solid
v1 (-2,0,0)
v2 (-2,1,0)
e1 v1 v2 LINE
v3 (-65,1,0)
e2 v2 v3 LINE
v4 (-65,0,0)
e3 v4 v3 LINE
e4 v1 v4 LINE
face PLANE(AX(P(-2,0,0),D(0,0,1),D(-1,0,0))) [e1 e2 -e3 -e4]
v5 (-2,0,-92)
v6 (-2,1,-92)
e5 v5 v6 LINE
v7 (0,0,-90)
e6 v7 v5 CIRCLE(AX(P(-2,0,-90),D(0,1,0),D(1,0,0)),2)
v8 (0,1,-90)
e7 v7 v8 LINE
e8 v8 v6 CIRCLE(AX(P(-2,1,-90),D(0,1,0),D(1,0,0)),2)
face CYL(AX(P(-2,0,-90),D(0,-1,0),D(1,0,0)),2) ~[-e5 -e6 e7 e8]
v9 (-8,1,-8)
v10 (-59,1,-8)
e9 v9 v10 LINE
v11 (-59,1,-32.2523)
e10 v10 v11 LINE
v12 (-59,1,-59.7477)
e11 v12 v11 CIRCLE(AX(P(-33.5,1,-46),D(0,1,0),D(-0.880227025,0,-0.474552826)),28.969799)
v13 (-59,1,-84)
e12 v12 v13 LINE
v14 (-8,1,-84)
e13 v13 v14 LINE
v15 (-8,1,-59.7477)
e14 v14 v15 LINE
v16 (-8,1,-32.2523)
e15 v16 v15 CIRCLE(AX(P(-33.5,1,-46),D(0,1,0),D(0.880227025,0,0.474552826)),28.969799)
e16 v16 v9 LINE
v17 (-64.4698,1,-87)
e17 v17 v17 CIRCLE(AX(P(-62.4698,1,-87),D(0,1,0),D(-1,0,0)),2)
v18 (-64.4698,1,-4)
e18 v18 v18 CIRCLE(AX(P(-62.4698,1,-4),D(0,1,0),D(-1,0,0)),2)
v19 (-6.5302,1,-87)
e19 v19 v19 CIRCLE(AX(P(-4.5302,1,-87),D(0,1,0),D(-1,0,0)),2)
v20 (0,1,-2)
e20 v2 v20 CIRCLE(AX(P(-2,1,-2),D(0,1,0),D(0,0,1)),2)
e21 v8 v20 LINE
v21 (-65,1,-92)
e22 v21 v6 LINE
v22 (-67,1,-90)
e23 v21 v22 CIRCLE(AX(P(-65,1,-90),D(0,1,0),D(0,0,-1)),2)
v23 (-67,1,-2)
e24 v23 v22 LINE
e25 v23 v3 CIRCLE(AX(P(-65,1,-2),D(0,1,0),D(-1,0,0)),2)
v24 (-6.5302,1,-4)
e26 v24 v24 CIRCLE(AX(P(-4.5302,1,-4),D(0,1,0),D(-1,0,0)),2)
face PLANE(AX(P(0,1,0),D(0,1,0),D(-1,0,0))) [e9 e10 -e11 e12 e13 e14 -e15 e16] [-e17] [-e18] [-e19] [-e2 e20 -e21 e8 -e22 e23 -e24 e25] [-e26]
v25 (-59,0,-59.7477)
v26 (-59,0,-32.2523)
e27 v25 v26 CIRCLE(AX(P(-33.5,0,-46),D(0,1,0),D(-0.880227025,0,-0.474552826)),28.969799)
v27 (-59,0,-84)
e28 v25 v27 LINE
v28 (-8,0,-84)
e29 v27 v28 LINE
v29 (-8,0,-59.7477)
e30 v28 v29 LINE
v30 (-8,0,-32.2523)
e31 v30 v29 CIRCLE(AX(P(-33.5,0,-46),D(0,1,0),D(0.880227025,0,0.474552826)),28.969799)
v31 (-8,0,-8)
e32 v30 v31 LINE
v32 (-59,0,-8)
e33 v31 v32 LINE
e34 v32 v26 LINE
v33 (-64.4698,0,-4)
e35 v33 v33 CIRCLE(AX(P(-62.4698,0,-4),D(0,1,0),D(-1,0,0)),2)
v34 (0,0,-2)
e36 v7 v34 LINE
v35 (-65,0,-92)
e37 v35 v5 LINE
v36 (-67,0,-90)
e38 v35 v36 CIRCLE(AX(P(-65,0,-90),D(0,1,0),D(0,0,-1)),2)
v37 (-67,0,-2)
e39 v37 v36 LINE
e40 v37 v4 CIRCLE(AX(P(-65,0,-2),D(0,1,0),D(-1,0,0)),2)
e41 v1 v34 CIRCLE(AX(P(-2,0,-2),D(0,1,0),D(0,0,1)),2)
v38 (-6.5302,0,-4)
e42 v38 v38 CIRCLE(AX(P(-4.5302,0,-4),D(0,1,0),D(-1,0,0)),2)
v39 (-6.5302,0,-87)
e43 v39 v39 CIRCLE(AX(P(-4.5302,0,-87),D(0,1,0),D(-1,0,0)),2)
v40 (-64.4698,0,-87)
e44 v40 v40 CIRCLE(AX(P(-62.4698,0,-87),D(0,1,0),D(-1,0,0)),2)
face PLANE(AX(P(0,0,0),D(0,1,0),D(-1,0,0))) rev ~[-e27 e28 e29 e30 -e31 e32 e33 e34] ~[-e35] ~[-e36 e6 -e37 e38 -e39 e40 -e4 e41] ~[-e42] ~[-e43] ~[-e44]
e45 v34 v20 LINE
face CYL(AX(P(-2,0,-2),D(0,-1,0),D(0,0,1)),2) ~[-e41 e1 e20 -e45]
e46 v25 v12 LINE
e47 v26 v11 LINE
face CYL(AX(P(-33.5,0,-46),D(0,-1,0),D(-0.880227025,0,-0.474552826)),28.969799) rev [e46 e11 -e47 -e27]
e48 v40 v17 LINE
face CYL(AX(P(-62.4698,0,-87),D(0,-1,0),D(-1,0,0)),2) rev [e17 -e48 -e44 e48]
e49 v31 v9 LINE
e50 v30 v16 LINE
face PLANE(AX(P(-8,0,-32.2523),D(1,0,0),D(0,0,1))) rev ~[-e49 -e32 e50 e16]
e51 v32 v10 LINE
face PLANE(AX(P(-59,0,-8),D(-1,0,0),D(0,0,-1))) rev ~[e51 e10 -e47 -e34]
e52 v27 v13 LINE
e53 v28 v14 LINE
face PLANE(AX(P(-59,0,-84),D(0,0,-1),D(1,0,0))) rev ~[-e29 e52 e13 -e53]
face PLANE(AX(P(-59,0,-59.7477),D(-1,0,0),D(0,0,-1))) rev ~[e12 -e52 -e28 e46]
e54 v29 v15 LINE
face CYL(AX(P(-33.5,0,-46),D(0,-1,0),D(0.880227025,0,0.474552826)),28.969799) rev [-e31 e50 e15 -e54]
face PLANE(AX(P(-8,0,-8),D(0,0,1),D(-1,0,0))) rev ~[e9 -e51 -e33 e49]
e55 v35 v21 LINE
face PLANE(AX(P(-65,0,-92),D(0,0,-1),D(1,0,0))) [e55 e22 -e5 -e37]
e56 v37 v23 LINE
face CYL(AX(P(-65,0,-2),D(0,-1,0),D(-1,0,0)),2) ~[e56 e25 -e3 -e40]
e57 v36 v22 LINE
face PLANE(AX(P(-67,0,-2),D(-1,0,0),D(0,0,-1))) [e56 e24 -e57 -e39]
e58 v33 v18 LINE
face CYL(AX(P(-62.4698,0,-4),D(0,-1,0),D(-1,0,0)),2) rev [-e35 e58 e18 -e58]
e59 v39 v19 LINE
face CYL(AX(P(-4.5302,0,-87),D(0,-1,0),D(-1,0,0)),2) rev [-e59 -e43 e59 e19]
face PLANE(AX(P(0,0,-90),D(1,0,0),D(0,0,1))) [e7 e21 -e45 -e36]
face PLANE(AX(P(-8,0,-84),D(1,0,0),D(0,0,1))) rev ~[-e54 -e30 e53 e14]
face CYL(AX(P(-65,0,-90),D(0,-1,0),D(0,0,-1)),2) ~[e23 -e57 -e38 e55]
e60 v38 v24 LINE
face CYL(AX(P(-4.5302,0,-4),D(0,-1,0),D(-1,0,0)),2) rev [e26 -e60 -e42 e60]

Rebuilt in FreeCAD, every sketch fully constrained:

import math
import FreeCAD as App
import Part
import Sketcher

V = App.Vector
Q = App.Units.Quantity

doc = App.newDocument("Part")
params = doc.addObject("Spreadsheet::Sheet", "Params")
for row, (alias, value) in enumerate([
    ("sketch1_diameter", "4 mm"),
    ("sketch1_width", "51 mm"),
    ("pad1_length", "1 mm"),
], start=1):
    params.set(f"A{row}", alias)
    params.set(f"B{row}", "=" + value)
    params.setAlias(f"B{row}", alias)

body = doc.addObject("PartDesign::Body", "Body")

sketch1 = body.newObject("Sketcher::SketchObject", "Sketch")
sketch1.AttachmentSupport = (doc.getObject("XZ_Plane"), [""])
sketch1.MapMode = "FlatFace"
sketch1.addGeometry(Part.LineSegment(V(-65, 0, 0), V(-2, 0, 0)), False)
sketch1.addGeometry(Part.ArcOfCircle(Part.Circle(V(-2, -2, 0), V(0, 0, 1), 2), math.radians(0), math.radians(90)), False)
sketch1.addGeometry(Part.LineSegment(V(0, -2, 0), V(0, -90, 0)), False)
sketch1.addGeometry(Part.ArcOfCircle(Part.Circle(V(-2, -90, 0), V(0, 0, 1), 2), math.radians(-90), math.radians(0)), False)
sketch1.addGeometry(Part.LineSegment(V(-2, -92, 0), V(-65, -92, 0)), False)
sketch1.addGeometry(Part.ArcOfCircle(Part.Circle(V(-65, -90, 0), V(0, 0, 1), 2), math.radians(180), math.radians(270)), False)
sketch1.addGeometry(Part.LineSegment(V(-67, -90, 0), V(-67, -2, 0)), False)
sketch1.addGeometry(Part.ArcOfCircle(Part.Circle(V(-65, -2, 0), V(0, 0, 1), 2), math.radians(90), math.radians(180)), False)
sketch1.addGeometry(Part.Circle(V(-4.5, -87, 0), V(0, 0, 1), 2), False)
sketch1.addGeometry(Part.Circle(V(-62.5, -87, 0), V(0, 0, 1), 2), False)
sketch1.addGeometry(Part.Circle(V(-4.5, -4, 0), V(0, 0, 1), 2), False)
sketch1.addGeometry(Part.LineSegment(V(-8, -32.3, 0), V(-8, -8, 0)), False)
sketch1.addGeometry(Part.LineSegment(V(-8, -8, 0), V(-59, -8, 0)), False)
sketch1.addGeometry(Part.LineSegment(V(-59, -8, 0), V(-59, -32.3, 0)), False)
sketch1.addGeometry(Part.ArcOfCircle(Part.Circle(V(-33.5, -46, 0), V(0, 0, 1), 29), math.radians(152), math.radians(208)), False)
sketch1.addGeometry(Part.LineSegment(V(-59, -59.7, 0), V(-59, -84, 0)), False)
sketch1.addGeometry(Part.LineSegment(V(-59, -84, 0), V(-8, -84, 0)), False)
sketch1.addGeometry(Part.LineSegment(V(-8, -84, 0), V(-8, -59.7, 0)), False)
sketch1.addGeometry(Part.ArcOfCircle(Part.Circle(V(-33.5, -46, 0), V(0, 0, 1), 29), math.radians(-28), math.radians(28)), False)
sketch1.addGeometry(Part.Circle(V(-62.5, -4, 0), V(0, 0, 1), 2), False)
sketch1.addConstraint(Sketcher.Constraint("Tangent", 0, 2, 1, 2))
sketch1.addConstraint(Sketcher.Constraint("Tangent", 1, 1, 2, 1))
sketch1.addConstraint(Sketcher.Constraint("Tangent", 2, 2, 3, 2))
sketch1.addConstraint(Sketcher.Constraint("Tangent", 3, 1, 4, 1))
sketch1.addConstraint(Sketcher.Constraint("Tangent", 4, 2, 5, 2))
sketch1.addConstraint(Sketcher.Constraint("Tangent", 5, 1, 6, 1))
sketch1.addConstraint(Sketcher.Constraint("Tangent", 6, 2, 7, 2))
sketch1.addConstraint(Sketcher.Constraint("Tangent", 7, 1, 0, 1))
sketch1.addConstraint(Sketcher.Constraint("Coincident", 11, 2, 12, 1))
sketch1.addConstraint(Sketcher.Constraint("Coincident", 12, 2, 13, 1))
sketch1.addConstraint(Sketcher.Constraint("Coincident", 13, 2, 14, 1))
sketch1.addConstraint(Sketcher.Constraint("Coincident", 14, 2, 15, 1))
sketch1.addConstraint(Sketcher.Constraint("Coincident", 15, 2, 16, 1))
sketch1.addConstraint(Sketcher.Constraint("Coincident", 16, 2, 17, 1))
sketch1.addConstraint(Sketcher.Constraint("Coincident", 17, 2, 18, 1))
sketch1.addConstraint(Sketcher.Constraint("Coincident", 18, 2, 11, 1))
sketch1.addConstraint(Sketcher.Constraint("Horizontal", 0))
sketch1.addConstraint(Sketcher.Constraint("Vertical", 2))
sketch1.addConstraint(Sketcher.Constraint("Horizontal", 4))
sketch1.addConstraint(Sketcher.Constraint("Vertical", 6))
sketch1.addConstraint(Sketcher.Constraint("Vertical", 11))
sketch1.addConstraint(Sketcher.Constraint("Horizontal", 12))
sketch1.addConstraint(Sketcher.Constraint("Vertical", 13))
sketch1.addConstraint(Sketcher.Constraint("Vertical", 15))
sketch1.addConstraint(Sketcher.Constraint("Horizontal", 16))
sketch1.addConstraint(Sketcher.Constraint("Vertical", 17))
sketch1.addConstraint(Sketcher.Constraint("Coincident", 18, 3, 14, 3))
sketch1.addConstraint(Sketcher.Constraint("Equal", 1, 3))
sketch1.addConstraint(Sketcher.Constraint("Equal", 3, 5))
sketch1.addConstraint(Sketcher.Constraint("Equal", 5, 7))
sketch1.addConstraint(Sketcher.Constraint("Equal", 7, 8))
sketch1.addConstraint(Sketcher.Constraint("Equal", 8, 9))
sketch1.addConstraint(Sketcher.Constraint("Equal", 9, 10))
sketch1.addConstraint(Sketcher.Constraint("Equal", 14, 18))
sketch1.addConstraint(Sketcher.Constraint("Equal", 10, 19))
sketch1.addConstraint(Sketcher.Constraint("PointOnObject", 0, 2, -1))
sketch1.addConstraint(Sketcher.Constraint("PointOnObject", 1, 1, -2))
sketch1.addConstraint(Sketcher.Constraint("Horizontal", 8, 3, 9, 3))
sketch1.addConstraint(Sketcher.Constraint("Horizontal", 10, 3, 19, 3))
sketch1.addConstraint(Sketcher.Constraint("Horizontal", 14, 2, 17, 2))
sketch1.addConstraint(Sketcher.Constraint("Horizontal", 13, 2, 18, 2))
sketch1.addConstraint(Sketcher.Constraint("Vertical", 8, 3, 10, 3))
sketch1.addConstraint(Sketcher.Constraint("Vertical", 9, 3, 19, 3))
sketch1.addConstraint(Sketcher.Constraint("Vertical", 13, 2, 14, 2))
sketch1.addConstraint(Sketcher.Constraint("Equal", 13, 15))
sketch1.addConstraint(Sketcher.Constraint("Diameter", 8, Q("4 mm")))
sketch1.addConstraint(Sketcher.Constraint("DistanceX", 12, 2, 12, 1, Q("51 mm")))
sketch1.addConstraint(Sketcher.Constraint("DistanceY", 3, 1, -1, 1, Q("92 mm")))
sketch1.addConstraint(Sketcher.Constraint("DistanceX", 5, 1, -1, 1, Q("67 mm")))
sketch1.addConstraint(Sketcher.Constraint("DistanceY", 10, 3, 1, 3, Q("2 mm")))
sketch1.addConstraint(Sketcher.Constraint("DistanceY", 8, 3, -1, 1, Q("87 mm")))
sketch1.addConstraint(Sketcher.Constraint("DistanceY", 14, 3, -1, 1, Q("46 mm")))
sketch1.addConstraint(Sketcher.Constraint("DistanceX", 11, 2, -1, 1, Q("8 mm")))
sketch1.addConstraint(Sketcher.Constraint("DistanceY", 11, 2, -1, 1, Q("8 mm")))
sketch1.addConstraint(Sketcher.Constraint("Radius", 14, Q("28.9698 mm")))
sketch1.addConstraint(Sketcher.Constraint("DistanceX", 8, 3, -1, 1, Q("4.5302 mm")))
sketch1.addConstraint(Sketcher.Constraint("DistanceX", 9, 3, -1, 1, Q("62.4698 mm")))
sketch1.setExpression("Constraints[45]", "Params.sketch1_diameter")
sketch1.setExpression("Constraints[46]", "Params.sketch1_width")
pad1 = body.newObject("PartDesign::Pad", "Pad")
pad1.Profile = sketch1
pad1.setExpression("Length", "Params.pad1_length")
pad1.Reversed = True

doc.recompute()
